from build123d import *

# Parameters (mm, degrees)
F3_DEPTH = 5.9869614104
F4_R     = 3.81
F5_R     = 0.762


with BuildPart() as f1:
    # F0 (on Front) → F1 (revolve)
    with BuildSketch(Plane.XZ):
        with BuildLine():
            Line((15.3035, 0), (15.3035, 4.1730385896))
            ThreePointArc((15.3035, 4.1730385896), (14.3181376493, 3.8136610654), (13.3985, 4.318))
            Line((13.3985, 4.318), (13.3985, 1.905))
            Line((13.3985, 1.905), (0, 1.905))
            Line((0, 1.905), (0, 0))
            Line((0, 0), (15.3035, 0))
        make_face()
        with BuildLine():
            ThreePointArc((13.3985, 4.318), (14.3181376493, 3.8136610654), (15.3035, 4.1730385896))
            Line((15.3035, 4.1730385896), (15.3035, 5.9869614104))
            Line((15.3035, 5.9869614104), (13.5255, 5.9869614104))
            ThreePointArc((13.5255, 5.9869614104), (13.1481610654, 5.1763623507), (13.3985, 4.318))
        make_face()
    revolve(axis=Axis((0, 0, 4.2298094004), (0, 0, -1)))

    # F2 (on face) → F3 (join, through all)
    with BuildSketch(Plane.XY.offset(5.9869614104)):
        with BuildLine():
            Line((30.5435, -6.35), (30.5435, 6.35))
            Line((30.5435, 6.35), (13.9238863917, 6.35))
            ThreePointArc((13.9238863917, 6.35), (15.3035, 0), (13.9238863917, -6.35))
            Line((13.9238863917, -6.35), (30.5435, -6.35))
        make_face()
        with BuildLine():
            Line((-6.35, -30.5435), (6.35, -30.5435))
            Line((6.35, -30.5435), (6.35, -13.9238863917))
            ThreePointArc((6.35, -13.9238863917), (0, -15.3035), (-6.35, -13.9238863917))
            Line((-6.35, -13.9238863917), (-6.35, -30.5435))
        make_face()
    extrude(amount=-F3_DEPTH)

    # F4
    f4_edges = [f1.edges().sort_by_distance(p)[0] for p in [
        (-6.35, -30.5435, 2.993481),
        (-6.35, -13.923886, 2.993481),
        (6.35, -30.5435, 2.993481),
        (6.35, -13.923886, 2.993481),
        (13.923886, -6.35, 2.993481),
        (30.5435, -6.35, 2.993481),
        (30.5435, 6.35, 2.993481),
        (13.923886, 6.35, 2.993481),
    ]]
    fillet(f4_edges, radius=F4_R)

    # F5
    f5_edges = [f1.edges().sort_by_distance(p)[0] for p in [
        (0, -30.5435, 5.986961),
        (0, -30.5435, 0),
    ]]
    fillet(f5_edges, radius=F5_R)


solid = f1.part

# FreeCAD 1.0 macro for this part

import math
import FreeCAD as App
import Part
import Sketcher
from FreeCAD import Vector
Q = App.Units.Quantity


def edges_at(feature, points):
    """Names of the edges that pass closest to the given points."""
    edges = feature.Shape.Edges
    near = lambda p: min(range(len(edges)), key=lambda i: edges[i].distToShape(Part.Vertex(*p))[0])
    return sorted({f"Edge{near(p) + 1}" for p in points})

doc = App.newDocument("Part")
body = doc.addObject("PartDesign::Body", "Body")

# Sketch on XZ plane
sketch1 = body.newObject("Sketcher::SketchObject", "Sketch")
sketch1.AttachmentSupport = (doc.getObject("XZ_Plane"), [""])
sketch1.MapMode = "FlatFace"
sketch1.addGeometry([
    Part.LineSegment(Vector(15.3, 0, 0), Vector(15.3, 6, 0)),  # 0
    Part.LineSegment(Vector(15.3, 6, 0), Vector(13.5, 6, 0)),  # 1
    Part.ArcOfCircle(Part.Circle(Vector(14.4, 5.1, 0), Vector(0, 0, 1), 1.3), math.radians(134), math.radians(217)),  # 2
    Part.LineSegment(Vector(13.4, 4.3, 0), Vector(13.4, 1.9, 0)),  # 3
    Part.LineSegment(Vector(13.4, 1.9, 0), Vector(0, 1.9, 0)),  # 4
    Part.LineSegment(Vector(0, 1.9, 0), Vector(0, 0, 0)),  # 5
    Part.LineSegment(Vector(0, 0, 0), Vector(15.3, 0, 0)),  # 6
], False)
sketch1.addConstraint([
    Sketcher.Constraint("Coincident", 0, 2, 1, 1),
    Sketcher.Constraint("Coincident", 1, 2, 2, 1),
    Sketcher.Constraint("Coincident", 2, 2, 3, 1),
    Sketcher.Constraint("Coincident", 3, 2, 4, 1),
    Sketcher.Constraint("Coincident", 4, 2, 5, 1),
    Sketcher.Constraint("Coincident", 5, 2, 6, 1),
    Sketcher.Constraint("Coincident", 6, 2, 0, 1),
    Sketcher.Constraint("Vertical", 0),
    Sketcher.Constraint("Horizontal", 1),
    Sketcher.Constraint("Vertical", 3),
    Sketcher.Constraint("Horizontal", 4),
    Sketcher.Constraint("Vertical", 5),
    Sketcher.Constraint("Horizontal", 6),
    Sketcher.Constraint("Coincident", 5, 2, -1, 1),
    Sketcher.Constraint("Radius", 2, Q("0.05 in")),
    Sketcher.Constraint("DistanceX", 1, 2, 1, 1, Q("0.07 in")),
    Sketcher.Constraint("DistanceY", -1, 1, 2, 3, Q("0.2 in")),
    Sketcher.Constraint("DistanceY", 3, 2, 3, 1, Q("0.095 in")),
    Sketcher.Constraint("DistanceY", 5, 2, 5, 1, Q("0.075 in")),
    Sketcher.Constraint("DistanceX", 4, 2, 4, 1, Q("0.5275 in")),
    Sketcher.Constraint("DistanceX", 6, 1, 6, 2, Q("0.6025 in")),
])
revolution = body.newObject("PartDesign::Revolution", "Revolution")
revolution.Profile = sketch1
revolution.ReferenceAxis = (sketch1, ["V_Axis"])
revolution.Angle = 360

# Sketch on XY plane
sketch2 = body.newObject("Sketcher::SketchObject", "Sketch001")
sketch2.AttachmentSupport = (doc.getObject("XY_Plane"), [""])
sketch2.MapMode = "FlatFace"
sketch2.AttachmentOffset = App.Placement(Vector(0, 0, 5.986961), App.Rotation())
sketch2.addGeometry([
    Part.LineSegment(Vector(31, -6, 0), Vector(31, 6, 0)),  # 0
    Part.LineSegment(Vector(31, 6, 0), Vector(14, 6, 0)),  # 1
    Part.ArcOfCircle(Part.Circle(Vector(0, 0, 0), Vector(0, 0, 1), 15), math.radians(-25), math.radians(25)),  # 2
    Part.LineSegment(Vector(14, -6, 0), Vector(31, -6, 0)),  # 3
    Part.LineSegment(Vector(-6, -31, 0), Vector(6, -31, 0)),  # 4
    Part.LineSegment(Vector(6, -31, 0), Vector(6, -14, 0)),  # 5
    Part.ArcOfCircle(Part.Circle(Vector(0, 0, 0), Vector(0, 0, 1), 15), math.radians(-115), math.radians(-65)),  # 6
    Part.LineSegment(Vector(-6, -14, 0), Vector(-6, -31, 0)),  # 7
], False)
sketch2.addConstraint([
    Sketcher.Constraint("Coincident", 0, 2, 1, 1),
    Sketcher.Constraint("Coincident", 1, 2, 2, 2),
    Sketcher.Constraint("Coincident", 2, 1, 3, 1),
    Sketcher.Constraint("Coincident", 3, 2, 0, 1),
    Sketcher.Constraint("Coincident", 4, 2, 5, 1),
    Sketcher.Constraint("Coincident", 5, 2, 6, 2),
    Sketcher.Constraint("Coincident", 6, 1, 7, 1),
    Sketcher.Constraint("Coincident", 7, 2, 4, 1),
    Sketcher.Constraint("Vertical", 0),
    Sketcher.Constraint("Horizontal", 1),
    Sketcher.Constraint("Horizontal", 3),
    Sketcher.Constraint("Horizontal", 4),
    Sketcher.Constraint("Vertical", 5),
    Sketcher.Constraint("Vertical", 7),
    Sketcher.Constraint("Coincident", 2, 3, -1, 1),
    Sketcher.Constraint("Coincident", 6, 3, -1, 1),
    Sketcher.Constraint("Equal", 2, 6),
    Sketcher.Constraint("Horizontal", 5, 2, 6, 1),
    Sketcher.Constraint("Vertical", 1, 2, 2, 1),
    Sketcher.Constraint("Equal", 4, 0),
    Sketcher.Constraint("Equal", 3, 5),
    Sketcher.Constraint("DistanceX", 4, 1, 4, 2, Q("0.5 in")),
    Sketcher.Constraint("Radius", 2, Q("0.6025 in")),
    Sketcher.Constraint("DistanceX", -1, 1, 0, 2, Q("1.2025 in")),
])
pad1 = body.newObject("PartDesign::Pad", "Pad")
pad1.Profile = sketch2
pad1.Length = 5.986961
pad1.Reversed = True
doc.recompute()

fillet = body.newObject("PartDesign::Fillet", "Fillet")
fillet.Base = (pad1, edges_at(pad1, [
    (-6.35, -30.544, 2.993),
    (-6.35, -13.924, 2.993),
    (6.35, -30.544, 2.993),
    (6.35, -13.924, 2.993),
    (13.924, -6.35, 2.993),
    (30.544, -6.35, 2.993),
    (30.544, 6.35, 2.993),
    (13.924, 6.35, 2.993),
]))
fillet.Radius = Q("0.15 in")
doc.recompute()

fillet2 = body.newObject("PartDesign::Fillet", "Fillet001")
fillet2.Base = (fillet, edges_at(fillet, [(0, -30.544, 5.987), (0, -30.544, 0)]))
fillet2.Radius = Q("0.03 in")

doc.recompute()
